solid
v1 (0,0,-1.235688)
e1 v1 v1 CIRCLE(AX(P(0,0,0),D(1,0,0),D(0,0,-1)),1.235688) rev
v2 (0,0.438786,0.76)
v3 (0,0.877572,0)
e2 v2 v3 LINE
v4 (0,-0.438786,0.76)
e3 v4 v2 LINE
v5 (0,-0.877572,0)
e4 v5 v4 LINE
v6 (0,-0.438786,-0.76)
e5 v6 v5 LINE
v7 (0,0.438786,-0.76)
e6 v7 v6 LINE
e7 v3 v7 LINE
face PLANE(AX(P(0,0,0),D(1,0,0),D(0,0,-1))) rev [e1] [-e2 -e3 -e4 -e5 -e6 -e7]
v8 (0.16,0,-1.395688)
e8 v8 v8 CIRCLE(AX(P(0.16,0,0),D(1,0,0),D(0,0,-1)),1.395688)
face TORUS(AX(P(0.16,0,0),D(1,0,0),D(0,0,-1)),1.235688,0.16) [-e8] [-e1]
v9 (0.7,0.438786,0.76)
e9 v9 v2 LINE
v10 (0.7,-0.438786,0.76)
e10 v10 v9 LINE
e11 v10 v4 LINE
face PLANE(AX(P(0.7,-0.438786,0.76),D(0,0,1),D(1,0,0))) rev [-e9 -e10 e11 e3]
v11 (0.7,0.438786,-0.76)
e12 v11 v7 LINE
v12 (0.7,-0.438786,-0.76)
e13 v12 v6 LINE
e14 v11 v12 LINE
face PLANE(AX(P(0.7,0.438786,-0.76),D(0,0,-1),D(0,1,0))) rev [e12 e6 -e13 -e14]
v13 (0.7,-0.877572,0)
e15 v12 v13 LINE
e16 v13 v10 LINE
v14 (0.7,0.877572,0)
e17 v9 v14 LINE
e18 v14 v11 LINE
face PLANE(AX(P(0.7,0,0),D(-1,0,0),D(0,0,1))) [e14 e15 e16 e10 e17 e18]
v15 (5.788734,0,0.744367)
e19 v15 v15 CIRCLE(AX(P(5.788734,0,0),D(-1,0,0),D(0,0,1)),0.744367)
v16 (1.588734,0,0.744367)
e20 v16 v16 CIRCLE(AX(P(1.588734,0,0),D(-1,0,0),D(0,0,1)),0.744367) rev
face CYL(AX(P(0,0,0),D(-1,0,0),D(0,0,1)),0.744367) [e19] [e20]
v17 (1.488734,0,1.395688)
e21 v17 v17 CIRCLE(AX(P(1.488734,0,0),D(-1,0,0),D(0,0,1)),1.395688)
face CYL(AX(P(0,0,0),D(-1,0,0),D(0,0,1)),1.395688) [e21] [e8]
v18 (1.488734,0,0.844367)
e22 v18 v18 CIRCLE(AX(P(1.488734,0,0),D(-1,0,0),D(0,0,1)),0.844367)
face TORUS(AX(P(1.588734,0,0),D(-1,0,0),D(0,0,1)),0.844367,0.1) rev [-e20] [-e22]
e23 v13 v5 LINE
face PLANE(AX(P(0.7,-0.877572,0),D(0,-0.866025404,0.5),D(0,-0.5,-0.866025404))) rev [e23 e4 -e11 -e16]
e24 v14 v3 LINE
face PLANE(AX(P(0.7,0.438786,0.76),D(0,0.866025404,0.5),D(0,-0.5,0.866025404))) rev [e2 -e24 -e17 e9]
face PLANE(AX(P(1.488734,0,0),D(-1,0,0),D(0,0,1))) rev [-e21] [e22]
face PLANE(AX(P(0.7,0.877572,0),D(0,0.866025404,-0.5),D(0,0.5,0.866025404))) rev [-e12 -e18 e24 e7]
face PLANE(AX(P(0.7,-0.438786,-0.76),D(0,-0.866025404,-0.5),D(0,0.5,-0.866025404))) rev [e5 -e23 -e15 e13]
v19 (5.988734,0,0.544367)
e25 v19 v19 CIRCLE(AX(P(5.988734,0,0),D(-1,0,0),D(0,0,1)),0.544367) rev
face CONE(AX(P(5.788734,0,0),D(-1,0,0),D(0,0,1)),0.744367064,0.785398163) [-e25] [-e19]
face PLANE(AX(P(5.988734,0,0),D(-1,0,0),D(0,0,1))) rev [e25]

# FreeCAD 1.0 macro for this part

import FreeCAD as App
import Part
import Sketcher
from FreeCAD import Vector
Q = App.Units.Quantity


def edges_at(feature, points):
    """Names of the edges that pass closest to the given points."""
    edges = feature.Shape.Edges
    near = lambda p: min(range(len(edges)), key=lambda i: edges[i].distToShape(Part.Vertex(*p))[0])
    return sorted({f"Edge{near(p) + 1}" for p in points})


def add_polygon(sketch, points):
    """Adds a closed chain of lines whose ends are joined by coincident constraints."""
    first, n = sketch.GeometryCount, len(points)
    for a, b in zip(points, points[1:] + points[:1]):
        sketch.addGeometry(Part.LineSegment(App.Vector(*a, 0), App.Vector(*b, 0)), False)
    for i in range(n):
        sketch.addConstraint(Sketcher.Constraint("Coincident", first + i, 2, first + (i + 1) % n, 1))

doc = App.newDocument("Part")
body = doc.addObject("PartDesign::Body", "Body")

# Sketch on XY plane
sketch1 = body.newObject("Sketcher::SketchObject", "Sketch")
sketch1.AttachmentSupport = (doc.getObject("XY_Plane"), [""])
sketch1.MapMode = "FlatFace"
add_polygon(sketch1, [(0, 1.395688), (0, 0), (5.988734, 0), (5.988734, 0.744367), (1.488734, 0.744367), (1.488734, 1.395688)])  # lines 0-5
sketch1.addConstraint(Sketcher.Constraint("Vertical", 0))
sketch1.addConstraint(Sketcher.Constraint("Horizontal", 1))
sketch1.addConstraint(Sketcher.Constraint("Vertical", 2))
sketch1.addConstraint(Sketcher.Constraint("Horizontal", 3))
sketch1.addConstraint(Sketcher.Constraint("Vertical", 4))
sketch1.addConstraint(Sketcher.Constraint("Horizontal", 5))
sketch1.addConstraint(Sketcher.Constraint("Coincident", 0, 2, -1, 1))
sketch1.addConstraint(Sketcher.Constraint("DistanceX", 3, 2, 3, 1, 4.5))
sketch1.addConstraint(Sketcher.Constraint("DistanceY", 0, 2, 0, 1, 1.395688))
sketch1.addConstraint(Sketcher.Constraint("DistanceY", 4, 1, 4, 2, 0.651321))
sketch1.addConstraint(Sketcher.Constraint("DistanceX", 1, 1, 1, 2, 5.988734))
revolution = body.newObject("PartDesign::Revolution", "Revolution")
revolution.Profile = sketch1
revolution.ReferenceAxis = (sketch1, ["H_Axis"])
revolution.Angle = 360
doc.recompute()

fillet = body.newObject("PartDesign::Fillet", "Fillet")
fillet.Base = (revolution, edges_at(revolution, [(1.489, 0, -0.744)]))
fillet.Radius = 0.1
doc.recompute()

fillet2 = body.newObject("PartDesign::Fillet", "Fillet001")
fillet2.Base = (fillet, edges_at(fillet, [(0, 0, -1.396)]))
fillet2.Radius = 0.16
doc.recompute()

chamfer = body.newObject("PartDesign::Chamfer", "Chamfer")
chamfer.Base = (fillet2, edges_at(fillet2, [(5.989, 0, -0.744)]))
chamfer.Size = 0.2

# Sketch on YZ plane
sketch2 = body.newObject("Sketcher::SketchObject", "Sketch001")
sketch2.AttachmentSupport = (doc.getObject("YZ_Plane"), [""])
sketch2.MapMode = "FlatFace"
add_polygon(sketch2, [(0.877572, 0), (0.438786, -0.76), (-0.438786, -0.76), (-0.877572, 0), (-0.438786, 0.76), (0.438786, 0.76)])  # lines 0-5
sketch2.addConstraint(Sketcher.Constraint("Horizontal", 1))
sketch2.addConstraint(Sketcher.Constraint("Horizontal", 4))
sketch2.addConstraint(Sketcher.Constraint("Symmetric", 0, 2, 3, 2, -1, 1))
sketch2.addConstraint(Sketcher.Constraint("Symmetric", 2, 2, 5, 2, -1, 1))
sketch2.addConstraint(Sketcher.Constraint("PointOnObject", 2, 2, -1))
sketch2.addConstraint(Sketcher.Constraint("Parallel", 2, 5))
sketch2.addConstraint(Sketcher.Constraint("Vertical", 1, 2, 3, 2))
sketch2.addConstraint(Sketcher.Constraint("Angle", 0, Q("-120 deg")))
sketch2.addConstraint(Sketcher.Constraint("DistanceY", 0, 2, -1, 1, 0.76))
sketch2.addConstraint(Sketcher.Constraint("DistanceX", 1, 2, 1, 1, 0.877572))
pocket1 = body.newObject("PartDesign::Pocket", "Pocket")
pocket1.Profile = sketch2
pocket1.Length = 0.7
pocket1.Reversed = True

doc.recompute()
